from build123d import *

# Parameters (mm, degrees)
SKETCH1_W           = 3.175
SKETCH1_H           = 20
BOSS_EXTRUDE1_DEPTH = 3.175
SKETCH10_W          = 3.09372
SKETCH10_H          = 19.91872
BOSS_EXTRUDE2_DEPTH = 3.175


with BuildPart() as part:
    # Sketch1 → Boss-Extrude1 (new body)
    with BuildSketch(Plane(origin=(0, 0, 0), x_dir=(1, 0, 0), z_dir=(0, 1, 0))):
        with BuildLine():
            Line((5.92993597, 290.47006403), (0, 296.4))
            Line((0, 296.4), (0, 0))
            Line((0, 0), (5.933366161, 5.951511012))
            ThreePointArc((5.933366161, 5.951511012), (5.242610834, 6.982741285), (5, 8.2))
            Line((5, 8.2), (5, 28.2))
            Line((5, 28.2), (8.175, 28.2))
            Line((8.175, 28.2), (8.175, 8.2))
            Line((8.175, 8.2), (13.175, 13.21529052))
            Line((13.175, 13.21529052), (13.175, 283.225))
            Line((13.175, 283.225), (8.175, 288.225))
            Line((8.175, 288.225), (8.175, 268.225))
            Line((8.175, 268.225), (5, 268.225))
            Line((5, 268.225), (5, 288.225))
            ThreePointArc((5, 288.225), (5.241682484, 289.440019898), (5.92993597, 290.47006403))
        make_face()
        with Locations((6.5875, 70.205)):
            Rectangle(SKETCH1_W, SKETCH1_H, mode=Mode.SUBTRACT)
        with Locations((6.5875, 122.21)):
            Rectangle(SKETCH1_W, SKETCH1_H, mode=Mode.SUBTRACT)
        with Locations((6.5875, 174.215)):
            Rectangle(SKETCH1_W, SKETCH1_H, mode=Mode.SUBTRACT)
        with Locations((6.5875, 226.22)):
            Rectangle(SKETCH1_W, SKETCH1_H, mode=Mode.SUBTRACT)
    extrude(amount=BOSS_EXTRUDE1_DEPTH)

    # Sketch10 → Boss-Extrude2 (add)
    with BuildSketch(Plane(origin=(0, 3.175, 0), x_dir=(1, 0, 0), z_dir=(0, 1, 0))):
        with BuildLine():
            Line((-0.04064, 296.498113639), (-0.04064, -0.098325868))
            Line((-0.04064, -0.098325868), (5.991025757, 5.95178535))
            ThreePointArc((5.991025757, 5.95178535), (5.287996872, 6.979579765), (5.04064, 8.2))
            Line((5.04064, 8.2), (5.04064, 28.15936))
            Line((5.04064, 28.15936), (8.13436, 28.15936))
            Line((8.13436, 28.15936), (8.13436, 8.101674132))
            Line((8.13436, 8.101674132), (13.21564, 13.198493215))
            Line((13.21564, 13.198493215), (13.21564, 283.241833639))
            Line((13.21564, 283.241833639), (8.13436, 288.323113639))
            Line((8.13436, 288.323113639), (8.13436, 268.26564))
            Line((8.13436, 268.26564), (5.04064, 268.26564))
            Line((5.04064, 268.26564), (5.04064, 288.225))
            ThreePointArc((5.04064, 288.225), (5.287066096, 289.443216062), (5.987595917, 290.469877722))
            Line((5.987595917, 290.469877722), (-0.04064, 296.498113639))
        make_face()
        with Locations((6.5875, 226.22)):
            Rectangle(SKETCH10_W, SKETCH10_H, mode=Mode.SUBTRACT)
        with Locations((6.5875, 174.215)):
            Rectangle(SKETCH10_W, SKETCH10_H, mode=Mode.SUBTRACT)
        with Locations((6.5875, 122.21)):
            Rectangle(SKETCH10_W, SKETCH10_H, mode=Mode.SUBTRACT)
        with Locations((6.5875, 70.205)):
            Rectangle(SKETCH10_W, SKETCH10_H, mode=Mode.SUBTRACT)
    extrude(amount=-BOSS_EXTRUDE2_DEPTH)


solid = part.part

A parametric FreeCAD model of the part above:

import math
import FreeCAD as App
import Part
import Sketcher
Q = App.Units.Quantity

doc = App.newDocument("Part")
body = doc.addObject("PartDesign::Body", "Body")

# Sketch on XZ plane
sketch1 = body.newObject("Sketcher::SketchObject", "Sketch")
sketch1.AttachmentSupport = (doc.getObject("XZ_Plane"), [""])
sketch1.MapMode = "FlatFace"
sketch1.addGeometry([
    Part.LineSegment(App.Vector(5.9, -290.5, 0), App.Vector(0, -296.4, 0)),  # 0
    Part.LineSegment(App.Vector(0, -296.4, 0), App.Vector(0, 0, 0)),  # 1
    Part.LineSegment(App.Vector(0, 0, 0), App.Vector(5.9, -6, 0)),  # 2
    Part.ArcOfCircle(Part.Circle(App.Vector(8.2, -8.2, 0), App.Vector(0, 0, 1), 3.2), math.radians(135), math.radians(180)),  # 3
    Part.LineSegment(App.Vector(5, -8.2, 0), App.Vector(5, -28.2, 0)),  # 4
    Part.LineSegment(App.Vector(5, -28.2, 0), App.Vector(8.2, -28.2, 0)),  # 5
    Part.LineSegment(App.Vector(8.2, -28.2, 0), App.Vector(8.2, -8.2, 0)),  # 6
    Part.LineSegment(App.Vector(8.2, -8.2, 0), App.Vector(13.2, -13.2, 0)),  # 7
    Part.LineSegment(App.Vector(13.2, -13.2, 0), App.Vector(13.2, -283.2, 0)),  # 8
    Part.LineSegment(App.Vector(13.2, -283.2, 0), App.Vector(8.2, -288.2, 0)),  # 9
    Part.LineSegment(App.Vector(8.2, -288.2, 0), App.Vector(8.2, -268.2, 0)),  # 10
    Part.LineSegment(App.Vector(8.2, -268.2, 0), App.Vector(5, -268.2, 0)),  # 11
    Part.LineSegment(App.Vector(5, -268.2, 0), App.Vector(5, -288.2, 0)),  # 12
    Part.ArcOfCircle(Part.Circle(App.Vector(8.2, -288.2, 0), App.Vector(0, 0, 1), 3.2), math.radians(180), math.radians(225)),  # 13
    Part.LineSegment(App.Vector(8.2, -60.2, 0), App.Vector(5, -60.2, 0)),  # 14
    Part.LineSegment(App.Vector(5, -60.2, 0), App.Vector(5, -80.2, 0)),  # 15
    Part.LineSegment(App.Vector(5, -80.2, 0), App.Vector(8.2, -80.2, 0)),  # 16
    Part.LineSegment(App.Vector(8.2, -80.2, 0), App.Vector(8.2, -60.2, 0)),  # 17
    Part.LineSegment(App.Vector(8.2, -112.2, 0), App.Vector(5, -112.2, 0)),  # 18
    Part.LineSegment(App.Vector(5, -112.2, 0), App.Vector(5, -132.2, 0)),  # 19
    Part.LineSegment(App.Vector(5, -132.2, 0), App.Vector(8.2, -132.2, 0)),  # 20
    Part.LineSegment(App.Vector(8.2, -132.2, 0), App.Vector(8.2, -112.2, 0)),  # 21
    Part.LineSegment(App.Vector(8.2, -164.2, 0), App.Vector(5, -164.2, 0)),  # 22
    Part.LineSegment(App.Vector(5, -164.2, 0), App.Vector(5, -184.2, 0)),  # 23
    Part.LineSegment(App.Vector(5, -184.2, 0), App.Vector(8.2, -184.2, 0)),  # 24
    Part.LineSegment(App.Vector(8.2, -184.2, 0), App.Vector(8.2, -164.2, 0)),  # 25
    Part.LineSegment(App.Vector(8.2, -216.2, 0), App.Vector(5, -216.2, 0)),  # 26
    Part.LineSegment(App.Vector(5, -216.2, 0), App.Vector(5, -236.2, 0)),  # 27
    Part.LineSegment(App.Vector(5, -236.2, 0), App.Vector(8.2, -236.2, 0)),  # 28
    Part.LineSegment(App.Vector(8.2, -236.2, 0), App.Vector(8.2, -216.2, 0)),  # 29
], False)
sketch1.addConstraint([
    Sketcher.Constraint("Coincident", 0, 2, 1, 1),
    Sketcher.Constraint("Coincident", 1, 2, 2, 1),
    Sketcher.Constraint("Coincident", 2, 2, 3, 1),
    Sketcher.Constraint("Tangent", 3, 2, 4, 1),
    Sketcher.Constraint("Coincident", 4, 2, 5, 1),
    Sketcher.Constraint("Coincident", 5, 2, 6, 1),
    Sketcher.Constraint("Coincident", 6, 2, 7, 1),
    Sketcher.Constraint("Coincident", 7, 2, 8, 1),
    Sketcher.Constraint("Coincident", 8, 2, 9, 1),
    Sketcher.Constraint("Coincident", 9, 2, 10, 1),
    Sketcher.Constraint("Coincident", 10, 2, 11, 1),
    Sketcher.Constraint("Coincident", 11, 2, 12, 1),
    Sketcher.Constraint("Tangent", 12, 2, 13, 1),
    Sketcher.Constraint("Coincident", 13, 2, 0, 1),
    Sketcher.Constraint("Coincident", 14, 2, 15, 1),
    Sketcher.Constraint("Coincident", 15, 2, 16, 1),
    Sketcher.Constraint("Coincident", 16, 2, 17, 1),
    Sketcher.Constraint("Coincident", 17, 2, 14, 1),
    Sketcher.Constraint("Coincident", 18, 2, 19, 1),
    Sketcher.Constraint("Coincident", 19, 2, 20, 1),
    Sketcher.Constraint("Coincident", 20, 2, 21, 1),
    Sketcher.Constraint("Coincident", 21, 2, 18, 1),
    Sketcher.Constraint("Coincident", 22, 2, 23, 1),
    Sketcher.Constraint("Coincident", 23, 2, 24, 1),
    Sketcher.Constraint("Coincident", 24, 2, 25, 1),
    Sketcher.Constraint("Coincident", 25, 2, 22, 1),
    Sketcher.Constraint("Coincident", 26, 2, 27, 1),
    Sketcher.Constraint("Coincident", 27, 2, 28, 1),
    Sketcher.Constraint("Coincident", 28, 2, 29, 1),
    Sketcher.Constraint("Coincident", 29, 2, 26, 1),
    Sketcher.Constraint("Vertical", 1),
    Sketcher.Constraint("Vertical", 4),
    Sketcher.Constraint("Horizontal", 5),
    Sketcher.Constraint("Vertical", 6),
    Sketcher.Constraint("Vertical", 8),
    Sketcher.Constraint("Vertical", 10),
    Sketcher.Constraint("Horizontal", 11),
    Sketcher.Constraint("Vertical", 12),
    Sketcher.Constraint("Horizontal", 14),
    Sketcher.Constraint("Vertical", 15),
    Sketcher.Constraint("Horizontal", 16),
    Sketcher.Constraint("Vertical", 17),
    Sketcher.Constraint("Horizontal", 18),
    Sketcher.Constraint("Vertical", 19),
    Sketcher.Constraint("Horizontal", 20),
    Sketcher.Constraint("Vertical", 21),
    Sketcher.Constraint("Horizontal", 22),
    Sketcher.Constraint("Vertical", 23),
    Sketcher.Constraint("Horizontal", 24),
    Sketcher.Constraint("Vertical", 25),
    Sketcher.Constraint("Horizontal", 26),
    Sketcher.Constraint("Vertical", 27),
    Sketcher.Constraint("Horizontal", 28),
    Sketcher.Constraint("Vertical", 29),
    Sketcher.Constraint("Coincident", 1, 2, -1, 1),
    Sketcher.Constraint("Coincident", 6, 2, 3, 3),
    Sketcher.Constraint("Coincident", 9, 2, 13, 3),
    Sketcher.Constraint("Equal", 3, 13),
    Sketcher.Constraint("Parallel", 2, 7),
    Sketcher.Constraint("Parallel", 0, 9),
    Sketcher.Constraint("Vertical", 3, 3, 13, 3),
    Sketcher.Constraint("Vertical", 12, 2, 14, 2),
    Sketcher.Constraint("Vertical", 10, 2, 16, 2),
    Sketcher.Constraint("Vertical", 15, 2, 18, 2),
    Sketcher.Constraint("Vertical", 17, 2, 20, 2),
    Sketcher.Constraint("Vertical", 19, 2, 22, 2),
    Sketcher.Constraint("Vertical", 21, 2, 24, 2),
    Sketcher.Constraint("Vertical", 23, 2, 26, 2),
    Sketcher.Constraint("Vertical", 25, 2, 28, 2),
    Sketcher.Constraint("Equal", 6, 10),
    Sketcher.Constraint("Equal", 12, 15),
    Sketcher.Constraint("Equal", 17, 19),
    Sketcher.Constraint("Equal", 21, 23),
    Sketcher.Constraint("Equal", 25, 27),
    Sketcher.Constraint("DistanceY", 4, 2, 4, 1, 20.0),
    Sketcher.Constraint("Angle", 0, Q("-135 deg")),
    Sketcher.Constraint("DistanceY", 1, 1, 1, 2, 296.4),
    Sketcher.Constraint("DistanceX", -1, 1, 3, 2, 5.0),
    Sketcher.Constraint("Radius", 3, 3.175),
    Sketcher.Constraint("DistanceX", 6, 2, 7, 2, 5.0),
    Sketcher.Constraint("DistanceY", 3, 3, -1, 1, 8.2),
    Sketcher.Constraint("DistanceY", 18, 2, -1, 1, 112.21),
    Sketcher.Constraint("DistanceY", 26, 2, -1, 1, 216.22),
    Sketcher.Constraint("DistanceY", 22, 2, 15, 2, 84.01),
    Sketcher.Constraint("DistanceY", 13, 3, -1, 1, 288.225),
    Sketcher.Constraint("DistanceY", 14, 2, -1, 1, 60.205),
    Sketcher.Constraint("DistanceY", 8, 2, 8, 1, 270.009709),
])
pad1 = body.newObject("PartDesign::Pad", "Pad")
pad1.Profile = sketch1
pad1.Length = 3.175
pad1.Reversed = True

# Sketch on XZ plane
sketch2 = body.newObject("Sketcher::SketchObject", "Sketch001")
sketch2.AttachmentSupport = (doc.getObject("XZ_Plane"), [""])
sketch2.MapMode = "FlatFace"
sketch2.AttachmentOffset = App.Placement(App.Vector(0, 0, -3.175), App.Rotation())
sketch2.addGeometry([
    Part.LineSegment(App.Vector(0, -296.5, 0), App.Vector(0, 0.1, 0)),  # 0
    Part.LineSegment(App.Vector(0, 0.1, 0), App.Vector(6, -6, 0)),  # 1
    Part.ArcOfCircle(Part.Circle(App.Vector(8.2, -8.2, 0), App.Vector(0, 0, 1), 3.1), math.radians(134), math.radians(180)),  # 2
    Part.LineSegment(App.Vector(5, -8.2, 0), App.Vector(5, -28.2, 0)),  # 3
    Part.LineSegment(App.Vector(5, -28.2, 0), App.Vector(8.1, -28.2, 0)),  # 4
    Part.LineSegment(App.Vector(8.1, -28.2, 0), App.Vector(8.1, -8.1, 0)),  # 5
    Part.LineSegment(App.Vector(8.1, -8.1, 0), App.Vector(13.2, -13.2, 0)),  # 6
    Part.LineSegment(App.Vector(13.2, -13.2, 0), App.Vector(13.2, -283.2, 0)),  # 7
    Part.LineSegment(App.Vector(13.2, -283.2, 0), App.Vector(8.1, -288.3, 0)),  # 8
    Part.LineSegment(App.Vector(8.1, -288.3, 0), App.Vector(8.1, -268.3, 0)),  # 9
    Part.LineSegment(App.Vector(8.1, -268.3, 0), App.Vector(5, -268.3, 0)),  # 10
    Part.LineSegment(App.Vector(5, -268.3, 0), App.Vector(5, -288.2, 0)),  # 11
    Part.ArcOfCircle(Part.Circle(App.Vector(8.2, -288.2, 0), App.Vector(0, 0, 1), 3.1), math.radians(-180), math.radians(-134)),  # 12
    Part.LineSegment(App.Vector(6, -290.5, 0), App.Vector(0, -296.5, 0)),  # 13
    Part.LineSegment(App.Vector(8.1, -60.2, 0), App.Vector(5, -60.2, 0)),  # 14
    Part.LineSegment(App.Vector(5, -60.2, 0), App.Vector(5, -80.2, 0)),  # 15
    Part.LineSegment(App.Vector(5, -80.2, 0), App.Vector(8.1, -80.2, 0)),  # 16
    Part.LineSegment(App.Vector(8.1, -80.2, 0), App.Vector(8.1, -60.2, 0)),  # 17
    Part.LineSegment(App.Vector(8.1, -112.3, 0), App.Vector(5, -112.3, 0)),  # 18
    Part.LineSegment(App.Vector(5, -112.3, 0), App.Vector(5, -132.2, 0)),  # 19
    Part.LineSegment(App.Vector(5, -132.2, 0), App.Vector(8.1, -132.2, 0)),  # 20
    Part.LineSegment(App.Vector(8.1, -132.2, 0), App.Vector(8.1, -112.3, 0)),  # 21
    Part.LineSegment(App.Vector(8.1, -164.3, 0), App.Vector(5, -164.3, 0)),  # 22
    Part.LineSegment(App.Vector(5, -164.3, 0), App.Vector(5, -184.2, 0)),  # 23
    Part.LineSegment(App.Vector(5, -184.2, 0), App.Vector(8.1, -184.2, 0)),  # 24
    Part.LineSegment(App.Vector(8.1, -184.2, 0), App.Vector(8.1, -164.3, 0)),  # 25
    Part.LineSegment(App.Vector(8.1, -216.3, 0), App.Vector(5, -216.3, 0)),  # 26
    Part.LineSegment(App.Vector(5, -216.3, 0), App.Vector(5, -236.2, 0)),  # 27
    Part.LineSegment(App.Vector(5, -236.2, 0), App.Vector(8.1, -236.2, 0)),  # 28
    Part.LineSegment(App.Vector(8.1, -236.2, 0), App.Vector(8.1, -216.3, 0)),  # 29
], False)
sketch2.addConstraint([
    Sketcher.Constraint("Coincident", 0, 2, 1, 1),
    Sketcher.Constraint("Coincident", 1, 2, 2, 1),
    Sketcher.Constraint("Tangent", 2, 2, 3, 1),
    Sketcher.Constraint("Coincident", 3, 2, 4, 1),
    Sketcher.Constraint("Coincident", 4, 2, 5, 1),
    Sketcher.Constraint("Coincident", 5, 2, 6, 1),
    Sketcher.Constraint("Coincident", 6, 2, 7, 1),
    Sketcher.Constraint("Coincident", 7, 2, 8, 1),
    Sketcher.Constraint("Coincident", 8, 2, 9, 1),
    Sketcher.Constraint("Coincident", 9, 2, 10, 1),
    Sketcher.Constraint("Coincident", 10, 2, 11, 1),
    Sketcher.Constraint("Tangent", 11, 2, 12, 1),
    Sketcher.Constraint("Coincident", 12, 2, 13, 1),
    Sketcher.Constraint("Coincident", 13, 2, 0, 1),
    Sketcher.Constraint("Coincident", 14, 2, 15, 1),
    Sketcher.Constraint("Coincident", 15, 2, 16, 1),
    Sketcher.Constraint("Coincident", 16, 2, 17, 1),
    Sketcher.Constraint("Coincident", 17, 2, 14, 1),
    Sketcher.Constraint("Coincident", 18, 2, 19, 1),
    Sketcher.Constraint("Coincident", 19, 2, 20, 1),
    Sketcher.Constraint("Coincident", 20, 2, 21, 1),
    Sketcher.Constraint("Coincident", 21, 2, 18, 1),
    Sketcher.Constraint("Coincident", 22, 2, 23, 1),
    Sketcher.Constraint("Coincident", 23, 2, 24, 1),
    Sketcher.Constraint("Coincident", 24, 2, 25, 1),
    Sketcher.Constraint("Coincident", 25, 2, 22, 1),
    Sketcher.Constraint("Coincident", 26, 2, 27, 1),
    Sketcher.Constraint("Coincident", 27, 2, 28, 1),
    Sketcher.Constraint("Coincident", 28, 2, 29, 1),
    Sketcher.Constraint("Coincident", 29, 2, 26, 1),
    Sketcher.Constraint("Vertical", 0),
    Sketcher.Constraint("Vertical", 3),
    Sketcher.Constraint("Horizontal", 4),
    Sketcher.Constraint("Vertical", 5),
    Sketcher.Constraint("Vertical", 7),
    Sketcher.Constraint("Vertical", 9),
    Sketcher.Constraint("Horizontal", 10),
    Sketcher.Constraint("Vertical", 11),
    Sketcher.Constraint("Horizontal", 14),
    Sketcher.Constraint("Vertical", 15),
    Sketcher.Constraint("Horizontal", 16),
    Sketcher.Constraint("Vertical", 17),
    Sketcher.Constraint("Horizontal", 18),
    Sketcher.Constraint("Vertical", 19),
    Sketcher.Constraint("Horizontal", 20),
    Sketcher.Constraint("Vertical", 21),
    Sketcher.Constraint("Horizontal", 22),
    Sketcher.Constraint("Vertical", 23),
    Sketcher.Constraint("Horizontal", 24),
    Sketcher.Constraint("Vertical", 25),
    Sketcher.Constraint("Horizontal", 26),
    Sketcher.Constraint("Vertical", 27),
    Sketcher.Constraint("Horizontal", 28),
    Sketcher.Constraint("Vertical", 29),
    Sketcher.Constraint("Equal", 2, 12),
    Sketcher.Constraint("Parallel", 1, 6),
    Sketcher.Constraint("Parallel", 8, 13),
    Sketcher.Constraint("Vertical", 2, 3, 12, 3),
    Sketcher.Constraint("Vertical", 5, 2, 8, 2),
    Sketcher.Constraint("Vertical", 11, 2, 14, 2),
    Sketcher.Constraint("Vertical", 9, 2, 16, 2),
    Sketcher.Constraint("Vertical", 15, 2, 18, 2),
    Sketcher.Constraint("Vertical", 17, 2, 20, 2),
    Sketcher.Constraint("Vertical", 19, 2, 22, 2),
    Sketcher.Constraint("Vertical", 21, 2, 24, 2),
    Sketcher.Constraint("Vertical", 23, 2, 26, 2),
    Sketcher.Constraint("Vertical", 25, 2, 28, 2),
    Sketcher.Constraint("Equal", 3, 11),
    Sketcher.Constraint("Equal", 17, 19),
    Sketcher.Constraint("Equal", 21, 23),
    Sketcher.Constraint("Equal", 25, 27),
    Sketcher.Constraint("Angle", 8, Q("-135 deg")),
    Sketcher.Constraint("DistanceY", 2, 3, -1, 1, 8.2),
    Sketcher.Constraint("DistanceY", 5, 2, 0, 2, 8.2),
    Sketcher.Constraint("Radius", 2, 3.13436),
    Sketcher.Constraint("DistanceX", -1, 1, 2, 3, 8.175),
    Sketcher.Constraint("DistanceY", 12, 3, -1, 1, 288.225),
    Sketcher.Constraint("DistanceX", 0, 2, 4, 2, 8.175),
    Sketcher.Constraint("DistanceX", 2, 2, 6, 2, 8.175),
    Sketcher.Constraint("DistanceY", 13, 2, 8, 2, 8.175),
    Sketcher.Constraint("DistanceY", 15, 2, 3, 2, 52.005),
    Sketcher.Constraint("DistanceY", 18, 2, 14, 2, 52.005),
    Sketcher.Constraint("DistanceY", 22, 2, 18, 2, 52.005),
    Sketcher.Constraint("DistanceY", 26, 2, 22, 2, 52.005),
    Sketcher.Constraint("DistanceY", 10, 2, 26, 2, 52.005),
    Sketcher.Constraint("DistanceX", 4, 1, 4, 2, 3.09372),
    Sketcher.Constraint("DistanceY", 0, 1, 0, 2, 296.59644),
    Sketcher.Constraint("DistanceY", 3, 2, 3, 1, 19.95936),
    Sketcher.Constraint("DistanceY", 7, 2, 7, 1, 270.04334),
    Sketcher.Constraint("DistanceY", 5, 1, 5, 2, 20.057686),
])
pad2 = body.newObject("PartDesign::Pad", "Pad001")
pad2.Profile = sketch2
pad2.Length = 3.175

doc.recompute()
